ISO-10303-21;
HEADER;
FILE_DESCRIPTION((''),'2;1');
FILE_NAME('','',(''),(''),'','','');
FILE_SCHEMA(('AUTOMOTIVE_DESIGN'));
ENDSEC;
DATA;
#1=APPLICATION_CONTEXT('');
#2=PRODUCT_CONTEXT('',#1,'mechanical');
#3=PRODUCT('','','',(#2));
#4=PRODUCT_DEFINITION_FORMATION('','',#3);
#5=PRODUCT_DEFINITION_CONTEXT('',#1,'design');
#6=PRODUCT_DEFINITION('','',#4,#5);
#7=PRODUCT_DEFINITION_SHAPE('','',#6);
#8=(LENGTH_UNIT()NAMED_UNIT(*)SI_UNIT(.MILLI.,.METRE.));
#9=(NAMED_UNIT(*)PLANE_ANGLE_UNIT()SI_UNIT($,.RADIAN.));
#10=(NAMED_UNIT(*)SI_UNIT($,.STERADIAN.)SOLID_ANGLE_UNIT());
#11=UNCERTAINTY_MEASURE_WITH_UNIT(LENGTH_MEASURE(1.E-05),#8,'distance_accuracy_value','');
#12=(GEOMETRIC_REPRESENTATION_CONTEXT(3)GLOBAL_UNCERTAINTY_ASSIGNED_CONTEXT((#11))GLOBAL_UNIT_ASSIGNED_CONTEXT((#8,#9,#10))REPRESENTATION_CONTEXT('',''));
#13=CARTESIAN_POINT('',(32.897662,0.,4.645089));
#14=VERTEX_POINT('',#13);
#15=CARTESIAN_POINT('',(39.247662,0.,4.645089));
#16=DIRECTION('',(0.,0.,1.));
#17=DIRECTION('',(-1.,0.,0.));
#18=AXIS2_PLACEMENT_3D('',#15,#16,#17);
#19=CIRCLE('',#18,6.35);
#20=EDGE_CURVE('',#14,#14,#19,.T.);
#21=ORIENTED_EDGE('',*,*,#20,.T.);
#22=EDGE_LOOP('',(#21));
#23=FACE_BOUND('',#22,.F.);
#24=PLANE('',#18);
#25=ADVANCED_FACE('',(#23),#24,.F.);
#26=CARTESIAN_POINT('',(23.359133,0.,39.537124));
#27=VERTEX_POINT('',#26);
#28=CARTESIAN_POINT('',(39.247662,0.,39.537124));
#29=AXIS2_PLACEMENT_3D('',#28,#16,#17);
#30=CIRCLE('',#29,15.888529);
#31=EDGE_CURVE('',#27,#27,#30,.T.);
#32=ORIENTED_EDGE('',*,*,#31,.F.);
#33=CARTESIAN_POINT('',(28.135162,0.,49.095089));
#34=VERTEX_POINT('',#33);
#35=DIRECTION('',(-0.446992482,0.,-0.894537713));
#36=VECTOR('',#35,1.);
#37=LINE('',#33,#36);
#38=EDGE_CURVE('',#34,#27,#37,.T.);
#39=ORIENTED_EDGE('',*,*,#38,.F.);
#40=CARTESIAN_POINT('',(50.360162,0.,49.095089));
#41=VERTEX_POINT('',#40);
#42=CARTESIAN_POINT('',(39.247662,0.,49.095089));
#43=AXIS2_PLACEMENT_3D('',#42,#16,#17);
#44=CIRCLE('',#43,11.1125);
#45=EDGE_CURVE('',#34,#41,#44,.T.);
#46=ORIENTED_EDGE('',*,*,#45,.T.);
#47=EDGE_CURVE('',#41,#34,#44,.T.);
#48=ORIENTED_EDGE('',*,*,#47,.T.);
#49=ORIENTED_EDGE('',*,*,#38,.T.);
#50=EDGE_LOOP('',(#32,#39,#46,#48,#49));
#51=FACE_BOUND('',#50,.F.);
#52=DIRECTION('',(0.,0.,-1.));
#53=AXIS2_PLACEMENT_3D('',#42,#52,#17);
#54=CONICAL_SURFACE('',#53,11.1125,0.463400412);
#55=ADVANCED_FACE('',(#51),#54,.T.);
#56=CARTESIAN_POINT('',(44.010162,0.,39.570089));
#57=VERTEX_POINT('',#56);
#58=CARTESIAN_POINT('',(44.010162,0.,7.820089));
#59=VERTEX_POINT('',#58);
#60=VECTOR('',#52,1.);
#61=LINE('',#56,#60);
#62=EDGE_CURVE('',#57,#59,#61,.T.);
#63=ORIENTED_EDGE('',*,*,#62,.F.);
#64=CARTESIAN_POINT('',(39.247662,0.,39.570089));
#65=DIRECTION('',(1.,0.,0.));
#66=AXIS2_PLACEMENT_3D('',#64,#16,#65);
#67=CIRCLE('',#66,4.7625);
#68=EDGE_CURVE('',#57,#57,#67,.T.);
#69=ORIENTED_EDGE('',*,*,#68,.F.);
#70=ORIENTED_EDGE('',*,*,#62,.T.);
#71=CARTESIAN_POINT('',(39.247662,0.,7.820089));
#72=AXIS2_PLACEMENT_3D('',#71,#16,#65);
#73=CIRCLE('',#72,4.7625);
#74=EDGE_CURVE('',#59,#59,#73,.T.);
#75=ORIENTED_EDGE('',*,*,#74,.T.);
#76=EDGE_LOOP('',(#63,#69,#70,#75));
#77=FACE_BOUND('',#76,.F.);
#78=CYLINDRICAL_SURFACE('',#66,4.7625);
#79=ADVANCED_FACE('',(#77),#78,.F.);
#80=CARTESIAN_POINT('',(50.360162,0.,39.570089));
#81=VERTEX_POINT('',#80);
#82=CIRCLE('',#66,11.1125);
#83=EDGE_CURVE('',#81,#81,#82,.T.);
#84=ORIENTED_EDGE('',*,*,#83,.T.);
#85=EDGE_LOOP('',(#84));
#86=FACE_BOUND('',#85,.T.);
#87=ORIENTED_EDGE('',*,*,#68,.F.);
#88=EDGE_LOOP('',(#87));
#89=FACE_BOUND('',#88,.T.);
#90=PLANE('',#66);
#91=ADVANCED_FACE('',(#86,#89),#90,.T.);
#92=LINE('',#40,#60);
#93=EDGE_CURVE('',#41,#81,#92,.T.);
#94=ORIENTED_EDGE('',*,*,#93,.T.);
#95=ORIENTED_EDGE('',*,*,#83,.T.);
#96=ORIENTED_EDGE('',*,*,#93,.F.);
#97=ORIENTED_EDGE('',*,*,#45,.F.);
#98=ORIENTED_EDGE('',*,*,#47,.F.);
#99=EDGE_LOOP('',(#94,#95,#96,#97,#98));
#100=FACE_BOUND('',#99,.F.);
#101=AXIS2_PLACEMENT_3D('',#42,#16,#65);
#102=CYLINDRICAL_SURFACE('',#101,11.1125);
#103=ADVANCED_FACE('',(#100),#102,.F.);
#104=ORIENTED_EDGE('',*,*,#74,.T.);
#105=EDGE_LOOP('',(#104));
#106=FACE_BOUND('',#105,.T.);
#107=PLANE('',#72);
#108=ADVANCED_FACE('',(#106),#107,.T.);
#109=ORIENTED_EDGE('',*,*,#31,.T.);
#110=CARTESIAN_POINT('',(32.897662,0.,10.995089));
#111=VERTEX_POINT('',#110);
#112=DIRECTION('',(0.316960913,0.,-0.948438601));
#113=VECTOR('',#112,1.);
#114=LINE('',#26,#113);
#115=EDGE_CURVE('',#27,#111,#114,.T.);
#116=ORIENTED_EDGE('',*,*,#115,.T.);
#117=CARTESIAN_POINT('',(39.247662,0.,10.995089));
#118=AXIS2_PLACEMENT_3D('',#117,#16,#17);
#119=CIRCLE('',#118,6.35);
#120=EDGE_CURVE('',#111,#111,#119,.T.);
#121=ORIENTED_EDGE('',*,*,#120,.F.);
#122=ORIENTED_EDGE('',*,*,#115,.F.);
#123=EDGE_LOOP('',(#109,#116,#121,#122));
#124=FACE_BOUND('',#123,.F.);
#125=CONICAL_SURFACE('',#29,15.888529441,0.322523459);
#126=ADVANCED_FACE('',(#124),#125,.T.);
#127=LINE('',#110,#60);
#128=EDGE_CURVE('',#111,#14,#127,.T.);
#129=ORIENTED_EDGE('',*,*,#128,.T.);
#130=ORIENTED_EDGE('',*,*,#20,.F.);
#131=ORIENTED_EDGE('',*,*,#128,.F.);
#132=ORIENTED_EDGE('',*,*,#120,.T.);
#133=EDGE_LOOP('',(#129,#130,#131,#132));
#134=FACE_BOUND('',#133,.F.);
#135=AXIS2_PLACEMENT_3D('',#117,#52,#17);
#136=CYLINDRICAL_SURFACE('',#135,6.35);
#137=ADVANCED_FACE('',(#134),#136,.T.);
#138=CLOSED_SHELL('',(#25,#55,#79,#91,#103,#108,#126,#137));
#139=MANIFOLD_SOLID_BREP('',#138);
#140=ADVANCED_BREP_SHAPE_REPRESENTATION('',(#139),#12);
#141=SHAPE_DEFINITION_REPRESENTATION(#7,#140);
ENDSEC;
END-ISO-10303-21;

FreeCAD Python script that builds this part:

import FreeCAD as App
import Part
import Sketcher
from FreeCAD import Vector
Q = App.Units.Quantity


def edges_at(feature, points):
    """Names of the edges that pass closest to the given points."""
    edges = feature.Shape.Edges
    near = lambda p: min(range(len(edges)), key=lambda i: edges[i].distToShape(Part.Vertex(*p))[0])
    return sorted({f"Edge{near(p) + 1}" for p in points})

doc = App.newDocument("Part")
body = doc.addObject("PartDesign::Body", "Body")

sketch1 = body.newObject("Sketcher::SketchObject", "Sketch")
sketch1.AttachmentSupport = (doc.getObject("XY_Plane"), [""])
sketch1.MapMode = "FlatFace"
sketch1.addGeometry(Part.Circle(Vector(-69, -28, 0), Vector(0, 0, 1), 6), False)
sketch1.addConstraint([
    Sketcher.Constraint("Diameter", 0, Q("0.5 in")),
    Sketcher.Constraint("DistanceX", 0, 3, -1, 1, Q("69.473781 mm")),
    Sketcher.Constraint("DistanceY", 0, 3, -1, 1, Q("28.078364 mm")),
])
pad1 = body.newObject("PartDesign::Pad", "Pad")
pad1.Profile = sketch1
pad1.Length = Q("0.25 in")

sketch2 = body.newObject("Sketcher::SketchObject", "Sketch001")
sketch2.AttachmentSupport = (doc.getObject("XY_Plane"), [""])
sketch2.MapMode = "FlatFace"
sketch2.AttachmentOffset = App.Placement(Vector(0, 0, 0.25 * 25.4), App.Rotation())
sketch2.addGeometry(Part.Circle(Vector(-69, -28, 0), Vector(0, 0, 1), 16), False)
sketch2.addConstraint([
    Sketcher.Constraint("Diameter", 0, Q("1.25 in")),
    Sketcher.Constraint("DistanceX", 0, 3, -1, 1, Q("69.473781 mm")),
    Sketcher.Constraint("DistanceY", 0, 3, -1, 1, Q("28.078364 mm")),
])
pad2 = body.newObject("PartDesign::Pad", "Pad001")
pad2.Profile = sketch2
pad2.Length = Q("1.75 in")
doc.recompute()

chamfer = body.newObject("PartDesign::Chamfer", "Chamfer")
chamfer.Base = (pad2, edges_at(pad2, [(-53.599, -28.078, 28.575), (-85.349, -28.078, 6.35), (-85.349, -28.078, 50.8)]))
chamfer.Size = Q("0.2 in")
doc.recompute()

chamfer2 = body.newObject("PartDesign::Chamfer", "Chamfer001")
chamfer2.Base = (chamfer, edges_at(chamfer, [(-53.599, -28.078, 28.575), (-85.349, -28.078, 11.43), (-85.349, -28.078, 45.72)]))
chamfer2.Size = Q("0.2 in")

sketch3 = body.newObject("Sketcher::SketchObject", "Sketch002")
sketch3.AttachmentSupport = (doc.getObject("XY_Plane"), [""])
sketch3.MapMode = "FlatFace"
sketch3.AttachmentOffset = App.Placement(Vector(0, 0, 2 * 25.4), App.Rotation())
sketch3.addGeometry(Part.Circle(Vector(-69, -28, 0), Vector(0, 0, 1), 11), False)
sketch3.addConstraint([
    Sketcher.Constraint("Diameter", 0, Q("21.269601 mm")),
    Sketcher.Constraint("DistanceX", 0, 3, -1, 1, Q("69.473781 mm")),
    Sketcher.Constraint("DistanceY", 0, 3, -1, 1, Q("28.078364 mm")),
])
pocket1 = body.newObject("PartDesign::Pocket", "Pocket")
pocket1.Profile = sketch3
pocket1.Length = Q("0.25 in")

sketch4 = body.newObject("Sketcher::SketchObject", "Sketch003")
sketch4.AttachmentSupport = (doc.getObject("XY_Plane"), [""])
sketch4.MapMode = "FlatFace"
sketch4.AttachmentOffset = App.Placement(Vector(0, 0, 1.75 * 25.4), App.Rotation())
sketch4.addGeometry(Part.Circle(Vector(-69.5, -28.1, 0), Vector(0, 0, 1), 4.8), False)
sketch4.addConstraint([
    Sketcher.Constraint("Diameter", 0, Q("0.375 in")),
    Sketcher.Constraint("DistanceX", 0, 3, -1, 1, Q("69.473781 mm")),
    Sketcher.Constraint("DistanceY", 0, 3, -1, 1, Q("28.078364 mm")),
])
pocket2 = body.newObject("PartDesign::Pocket", "Pocket001")
pocket2.Profile = sketch4
pocket2.Length = Q("1.25 in")
body2 = doc.addObject("PartDesign::Body", "Body001")

sketch5 = body2.newObject("Sketcher::SketchObject", "Sketch004")
sketch5.AttachmentSupport = (doc.getObject("XY_Plane001"), [""])
sketch5.MapMode = "FlatFace"
sketch5.addGeometry(Part.Circle(Vector(-64, -45, 0), Vector(0, 0, 1), 6), False)
sketch5.addConstraint([
    Sketcher.Constraint("Diameter", 0, Q("0.5 in")),
    Sketcher.Constraint("DistanceX", 0, 3, -1, 1, Q("63.747905 mm")),
    Sketcher.Constraint("DistanceY", 0, 3, -1, 1, Q("45.282774 mm")),
])
pad3 = body2.newObject("PartDesign::Pad", "Pad002")
pad3.Profile = sketch5
pad3.Length = Q("0.25 in")

sketch6 = body2.newObject("Sketcher::SketchObject", "Sketch005")
sketch6.AttachmentSupport = (doc.getObject("XY_Plane001"), [""])
sketch6.MapMode = "FlatFace"
sketch6.AttachmentOffset = App.Placement(Vector(0, 0, 0.25 * 25.4), App.Rotation())
sketch6.addGeometry(Part.Circle(Vector(-64, -45, 0), Vector(0, 0, 1), 6), False)
sketch6.addConstraint([
    Sketcher.Constraint("Diameter", 0, Q("0.5 in")),
    Sketcher.Constraint("DistanceX", 0, 3, -1, 1, Q("63.747905 mm")),
    Sketcher.Constraint("DistanceY", 0, 3, -1, 1, Q("45.282774 mm")),
])
pad4 = body2.newObject("PartDesign::Pad", "Pad003")
pad4.Profile = sketch6
pad4.Length = Q("1.25 in")

sketch7 = body2.newObject("Sketcher::SketchObject", "Sketch006")
sketch7.AttachmentSupport = (doc.getObject("XY_Plane001"), [""])
sketch7.MapMode = "FlatFace"
sketch7.AttachmentOffset = App.Placement(Vector(0, 0, 1.5 * 25.4), App.Rotation())
sketch7.addGeometry(Part.Circle(Vector(-64, -45, 0), Vector(0, 0, 1), 16), False)
sketch7.addConstraint([
    Sketcher.Constraint("Diameter", 0, Q("1.25 in")),
    Sketcher.Constraint("DistanceX", 0, 3, -1, 1, Q("63.747905 mm")),
    Sketcher.Constraint("DistanceY", 0, 3, -1, 1, Q("45.282774 mm")),
])
pad5 = body2.newObject("PartDesign::Pad", "Pad004")
pad5.Profile = sketch7
pad5.Length = Q("0.25 in")
body3 = doc.addObject("PartDesign::Body", "Body002")

sketch8 = body3.newObject("Sketcher::SketchObject", "Sketch007")
sketch8.AttachmentSupport = (doc.getObject("XZ_Plane002"), [""])
sketch8.MapMode = "FlatFace"
sketch8.addGeometry([
    Part.LineSegment(Vector(28, 49, 0), Vector(23, 40, 0)),
    Part.LineSegment(Vector(23, 40, 0), Vector(33, 11, 0)),
    Part.LineSegment(Vector(33, 11, 0), Vector(33, 5, 0)),
    Part.LineSegment(Vector(33, 5, 0), Vector(39, 5, 0)),
    Part.LineSegment(Vector(39, 5, 0), Vector(39, 49, 0)),
    Part.LineSegment(Vector(39, 49, 0), Vector(28, 49, 0)),
], False)
sketch8.addGeometry(Part.LineSegment(Vector(39, 5, 0), Vector(39, 49, 0)), True)
sketch8.addConstraint([
    Sketcher.Constraint("Coincident", 0, 2, 1, 1),
    Sketcher.Constraint("Coincident", 1, 2, 2, 1),
    Sketcher.Constraint("Coincident", 2, 2, 3, 1),
    Sketcher.Constraint("Coincident", 3, 2, 4, 1),
    Sketcher.Constraint("Coincident", 4, 2, 5, 1),
    Sketcher.Constraint("Coincident", 5, 2, 0, 1),
    Sketcher.Constraint("Vertical", 2),
    Sketcher.Constraint("Horizontal", 3),
    Sketcher.Constraint("Vertical", 4),
    Sketcher.Constraint("Horizontal", 5),
    Sketcher.Constraint("Vertical", 6),
    Sketcher.Constraint("Coincident", 6, 1, 3, 2),
    Sketcher.Constraint("Horizontal", 5, 2, 6, 2),
    Sketcher.Constraint("Equal", 3, 2),
    Sketcher.Constraint("DistanceX", 3, 1, 3, 2, Q("0.25 in")),
    Sketcher.Constraint("DistanceY", 4, 1, 4, 2, Q("1.75 in")),
    Sketcher.Constraint("DistanceX", 5, 2, 5, 1, Q("0.4375 in")),
    Sketcher.Constraint("Distance", 0, Q("10.684809 mm")),
    Sketcher.Constraint("Distance", 1, Q("30.093709 mm")),
    Sketcher.Constraint("DistanceY", -1, 1, 1, 2, Q("10.995089 mm")),
    Sketcher.Constraint("DistanceX", -1, 1, 0, 2, Q("23.359133 mm")),
])
revolution = body3.newObject("PartDesign::Revolution", "Revolution")
revolution.Profile = sketch8
revolution.ReferenceAxis = (sketch8, ["Axis0"])
revolution.Angle = 360

sketch9 = body3.newObject("Sketcher::SketchObject", "Sketch008")
sketch9.AttachmentSupport = (doc.getObject("XY_Plane002"), [""])
sketch9.MapMode = "FlatFace"
sketch9.AttachmentOffset = App.Placement(Vector(0, 0, 49.095089), App.Rotation())
sketch9.addGeometry(Part.Circle(Vector(39, 0, 0), Vector(0, 0, 1), 11), False)
sketch9.addConstraint([
    Sketcher.Constraint("PointOnObject", 0, 3, -1),
    Sketcher.Constraint("Diameter", 0, Q("0.875 in")),
    Sketcher.Constraint("DistanceX", -1, 1, 0, 3, Q("39.247662 mm")),
])
pocket3 = body3.newObject("PartDesign::Pocket", "Pocket002")
pocket3.Profile = sketch9
pocket3.Length = Q("0.375 in")

sketch10 = body3.newObject("Sketcher::SketchObject", "Sketch009")
sketch10.AttachmentSupport = (doc.getObject("XY_Plane002"), [""])
sketch10.MapMode = "FlatFace"
sketch10.AttachmentOffset = App.Placement(Vector(0, 0, 39.570089), App.Rotation())
sketch10.addGeometry(Part.Circle(Vector(39.2, 0, 0), Vector(0, 0, 1), 4.8), False)
sketch10.addConstraint([
    Sketcher.Constraint("PointOnObject", 0, 3, -1),
    Sketcher.Constraint("Diameter", 0, Q("0.375 in")),
    Sketcher.Constraint("DistanceX", -1, 1, 0, 3, Q("39.247662 mm")),
])
pocket4 = body3.newObject("PartDesign::Pocket", "Pocket003")
pocket4.Profile = sketch10
pocket4.Length = Q("1.25 in")
body.Visibility = False
body2.Visibility = False

doc.recompute()
